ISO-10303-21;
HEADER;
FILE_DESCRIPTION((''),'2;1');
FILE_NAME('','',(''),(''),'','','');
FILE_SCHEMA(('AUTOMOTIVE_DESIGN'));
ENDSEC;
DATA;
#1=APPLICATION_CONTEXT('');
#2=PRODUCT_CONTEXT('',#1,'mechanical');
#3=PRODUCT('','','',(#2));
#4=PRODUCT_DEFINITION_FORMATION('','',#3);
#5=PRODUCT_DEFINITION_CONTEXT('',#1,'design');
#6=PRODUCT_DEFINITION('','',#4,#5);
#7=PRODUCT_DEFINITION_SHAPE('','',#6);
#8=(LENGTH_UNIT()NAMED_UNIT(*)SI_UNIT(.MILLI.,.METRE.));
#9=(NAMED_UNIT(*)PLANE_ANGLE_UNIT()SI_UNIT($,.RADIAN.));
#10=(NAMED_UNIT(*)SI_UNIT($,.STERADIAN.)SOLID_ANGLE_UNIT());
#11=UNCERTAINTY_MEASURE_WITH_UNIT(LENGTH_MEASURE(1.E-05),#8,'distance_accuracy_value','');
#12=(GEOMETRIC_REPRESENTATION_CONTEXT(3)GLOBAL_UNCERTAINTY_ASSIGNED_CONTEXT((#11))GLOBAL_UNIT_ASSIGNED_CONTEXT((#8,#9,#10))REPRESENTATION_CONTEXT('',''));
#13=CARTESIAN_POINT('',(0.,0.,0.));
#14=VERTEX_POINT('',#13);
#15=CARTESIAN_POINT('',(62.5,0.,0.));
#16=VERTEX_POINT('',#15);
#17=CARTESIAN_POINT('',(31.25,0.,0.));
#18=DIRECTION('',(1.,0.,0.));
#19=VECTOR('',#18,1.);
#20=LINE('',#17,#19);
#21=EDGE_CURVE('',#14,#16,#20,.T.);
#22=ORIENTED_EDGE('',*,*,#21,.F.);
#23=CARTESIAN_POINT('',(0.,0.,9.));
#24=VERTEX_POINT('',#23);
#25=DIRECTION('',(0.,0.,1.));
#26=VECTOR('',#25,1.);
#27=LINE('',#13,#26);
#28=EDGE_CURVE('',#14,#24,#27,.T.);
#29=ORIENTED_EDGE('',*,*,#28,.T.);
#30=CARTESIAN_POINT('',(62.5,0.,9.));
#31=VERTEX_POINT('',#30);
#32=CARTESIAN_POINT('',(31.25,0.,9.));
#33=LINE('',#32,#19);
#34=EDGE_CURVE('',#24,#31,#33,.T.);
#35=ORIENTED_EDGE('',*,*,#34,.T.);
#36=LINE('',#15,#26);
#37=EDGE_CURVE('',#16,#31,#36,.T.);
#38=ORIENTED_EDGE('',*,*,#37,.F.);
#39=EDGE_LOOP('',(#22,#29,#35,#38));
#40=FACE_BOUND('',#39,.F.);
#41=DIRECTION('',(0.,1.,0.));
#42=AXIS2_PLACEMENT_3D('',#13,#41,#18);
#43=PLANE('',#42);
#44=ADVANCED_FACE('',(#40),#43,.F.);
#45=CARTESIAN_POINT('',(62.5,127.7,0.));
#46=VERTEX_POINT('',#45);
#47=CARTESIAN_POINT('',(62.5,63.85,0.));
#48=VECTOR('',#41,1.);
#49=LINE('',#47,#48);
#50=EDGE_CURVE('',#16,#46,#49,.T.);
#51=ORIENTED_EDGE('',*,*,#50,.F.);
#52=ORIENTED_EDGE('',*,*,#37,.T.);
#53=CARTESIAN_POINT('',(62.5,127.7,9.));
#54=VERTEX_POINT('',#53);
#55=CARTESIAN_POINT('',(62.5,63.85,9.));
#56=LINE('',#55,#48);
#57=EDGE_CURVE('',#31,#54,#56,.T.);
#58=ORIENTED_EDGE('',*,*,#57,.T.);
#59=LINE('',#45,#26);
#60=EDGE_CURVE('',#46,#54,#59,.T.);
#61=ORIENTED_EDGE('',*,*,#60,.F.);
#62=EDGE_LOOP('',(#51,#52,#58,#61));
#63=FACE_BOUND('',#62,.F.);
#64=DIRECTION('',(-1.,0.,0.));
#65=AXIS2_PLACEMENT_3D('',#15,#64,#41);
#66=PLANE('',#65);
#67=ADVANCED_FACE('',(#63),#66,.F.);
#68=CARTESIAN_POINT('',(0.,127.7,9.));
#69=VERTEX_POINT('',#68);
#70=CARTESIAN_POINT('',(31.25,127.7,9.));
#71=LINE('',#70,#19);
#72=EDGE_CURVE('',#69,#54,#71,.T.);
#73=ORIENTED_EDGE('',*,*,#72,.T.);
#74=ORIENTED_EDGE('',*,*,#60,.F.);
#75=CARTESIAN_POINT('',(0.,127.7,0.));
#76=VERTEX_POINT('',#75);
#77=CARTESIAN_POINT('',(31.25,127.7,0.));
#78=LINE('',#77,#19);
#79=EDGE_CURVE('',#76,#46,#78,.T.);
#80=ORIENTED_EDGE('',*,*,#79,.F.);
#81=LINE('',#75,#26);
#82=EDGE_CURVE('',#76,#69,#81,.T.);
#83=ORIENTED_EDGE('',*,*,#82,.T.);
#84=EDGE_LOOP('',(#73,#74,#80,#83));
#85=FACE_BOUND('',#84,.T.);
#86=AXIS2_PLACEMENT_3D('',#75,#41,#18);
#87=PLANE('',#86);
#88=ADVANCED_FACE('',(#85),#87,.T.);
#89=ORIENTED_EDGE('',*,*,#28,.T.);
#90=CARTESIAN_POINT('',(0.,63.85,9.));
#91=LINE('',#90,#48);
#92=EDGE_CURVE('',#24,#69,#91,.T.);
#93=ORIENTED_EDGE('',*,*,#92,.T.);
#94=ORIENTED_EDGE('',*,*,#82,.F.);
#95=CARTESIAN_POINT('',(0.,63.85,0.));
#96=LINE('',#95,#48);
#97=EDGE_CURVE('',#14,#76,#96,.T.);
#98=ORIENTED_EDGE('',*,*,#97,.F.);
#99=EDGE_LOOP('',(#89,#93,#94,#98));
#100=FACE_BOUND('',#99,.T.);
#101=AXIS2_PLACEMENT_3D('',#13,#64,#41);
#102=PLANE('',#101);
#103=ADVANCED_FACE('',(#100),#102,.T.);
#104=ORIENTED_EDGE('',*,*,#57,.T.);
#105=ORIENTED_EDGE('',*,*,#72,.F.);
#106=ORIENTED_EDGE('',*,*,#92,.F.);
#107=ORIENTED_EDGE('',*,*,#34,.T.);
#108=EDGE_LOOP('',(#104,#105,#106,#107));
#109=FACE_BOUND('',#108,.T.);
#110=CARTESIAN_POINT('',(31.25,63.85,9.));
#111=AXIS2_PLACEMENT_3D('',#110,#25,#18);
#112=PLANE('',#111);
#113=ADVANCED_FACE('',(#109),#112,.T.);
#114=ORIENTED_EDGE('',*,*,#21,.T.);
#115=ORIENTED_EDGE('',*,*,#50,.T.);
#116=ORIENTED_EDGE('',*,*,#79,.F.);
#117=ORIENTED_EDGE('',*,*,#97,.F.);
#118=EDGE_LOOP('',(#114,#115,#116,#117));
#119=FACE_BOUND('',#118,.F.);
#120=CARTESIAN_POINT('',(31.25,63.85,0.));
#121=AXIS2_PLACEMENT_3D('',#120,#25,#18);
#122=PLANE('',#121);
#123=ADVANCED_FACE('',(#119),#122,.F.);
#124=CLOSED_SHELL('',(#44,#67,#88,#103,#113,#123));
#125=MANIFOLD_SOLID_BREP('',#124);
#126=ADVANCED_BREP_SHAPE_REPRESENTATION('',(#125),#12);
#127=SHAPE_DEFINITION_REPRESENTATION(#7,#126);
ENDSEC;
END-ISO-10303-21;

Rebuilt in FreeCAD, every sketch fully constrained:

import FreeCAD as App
import Part
import Sketcher
Q = App.Units.Quantity

doc = App.newDocument("Part")
body = doc.addObject("PartDesign::Body", "Body")

sketch1 = body.newObject("Sketcher::SketchObject", "Sketch")
sketch1.AttachmentSupport = (doc.getObject("XY_Plane"), [""])
sketch1.MapMode = "FlatFace"
sketch1.addGeometry([
    Part.LineSegment(App.Vector(0, 128, 0), App.Vector(0, 0, 0)),
    Part.LineSegment(App.Vector(0, 0, 0), App.Vector(62, 0, 0)),
    Part.LineSegment(App.Vector(62, 0, 0), App.Vector(62, 128, 0)),
    Part.LineSegment(App.Vector(62, 128, 0), App.Vector(0, 128, 0)),
], False)
sketch1.addConstraint([
    Sketcher.Constraint("Coincident", 0, 2, 1, 1),
    Sketcher.Constraint("Coincident", 1, 2, 2, 1),
    Sketcher.Constraint("Coincident", 2, 2, 3, 1),
    Sketcher.Constraint("Coincident", 3, 2, 0, 1),
    Sketcher.Constraint("Vertical", 0),
    Sketcher.Constraint("Horizontal", 1),
    Sketcher.Constraint("Vertical", 2),
    Sketcher.Constraint("Horizontal", 3),
    Sketcher.Constraint("Coincident", 0, 2, -1, 1),
    Sketcher.Constraint("DistanceX", 1, 1, 1, 2, Q("62.5 mm")),
    Sketcher.Constraint("DistanceY", 0, 2, 0, 1, Q("127.7 mm")),
])
pad1 = body.newObject("PartDesign::Pad", "Pad")
pad1.Profile = sketch1
pad1.Length = 9

doc.recompute()
